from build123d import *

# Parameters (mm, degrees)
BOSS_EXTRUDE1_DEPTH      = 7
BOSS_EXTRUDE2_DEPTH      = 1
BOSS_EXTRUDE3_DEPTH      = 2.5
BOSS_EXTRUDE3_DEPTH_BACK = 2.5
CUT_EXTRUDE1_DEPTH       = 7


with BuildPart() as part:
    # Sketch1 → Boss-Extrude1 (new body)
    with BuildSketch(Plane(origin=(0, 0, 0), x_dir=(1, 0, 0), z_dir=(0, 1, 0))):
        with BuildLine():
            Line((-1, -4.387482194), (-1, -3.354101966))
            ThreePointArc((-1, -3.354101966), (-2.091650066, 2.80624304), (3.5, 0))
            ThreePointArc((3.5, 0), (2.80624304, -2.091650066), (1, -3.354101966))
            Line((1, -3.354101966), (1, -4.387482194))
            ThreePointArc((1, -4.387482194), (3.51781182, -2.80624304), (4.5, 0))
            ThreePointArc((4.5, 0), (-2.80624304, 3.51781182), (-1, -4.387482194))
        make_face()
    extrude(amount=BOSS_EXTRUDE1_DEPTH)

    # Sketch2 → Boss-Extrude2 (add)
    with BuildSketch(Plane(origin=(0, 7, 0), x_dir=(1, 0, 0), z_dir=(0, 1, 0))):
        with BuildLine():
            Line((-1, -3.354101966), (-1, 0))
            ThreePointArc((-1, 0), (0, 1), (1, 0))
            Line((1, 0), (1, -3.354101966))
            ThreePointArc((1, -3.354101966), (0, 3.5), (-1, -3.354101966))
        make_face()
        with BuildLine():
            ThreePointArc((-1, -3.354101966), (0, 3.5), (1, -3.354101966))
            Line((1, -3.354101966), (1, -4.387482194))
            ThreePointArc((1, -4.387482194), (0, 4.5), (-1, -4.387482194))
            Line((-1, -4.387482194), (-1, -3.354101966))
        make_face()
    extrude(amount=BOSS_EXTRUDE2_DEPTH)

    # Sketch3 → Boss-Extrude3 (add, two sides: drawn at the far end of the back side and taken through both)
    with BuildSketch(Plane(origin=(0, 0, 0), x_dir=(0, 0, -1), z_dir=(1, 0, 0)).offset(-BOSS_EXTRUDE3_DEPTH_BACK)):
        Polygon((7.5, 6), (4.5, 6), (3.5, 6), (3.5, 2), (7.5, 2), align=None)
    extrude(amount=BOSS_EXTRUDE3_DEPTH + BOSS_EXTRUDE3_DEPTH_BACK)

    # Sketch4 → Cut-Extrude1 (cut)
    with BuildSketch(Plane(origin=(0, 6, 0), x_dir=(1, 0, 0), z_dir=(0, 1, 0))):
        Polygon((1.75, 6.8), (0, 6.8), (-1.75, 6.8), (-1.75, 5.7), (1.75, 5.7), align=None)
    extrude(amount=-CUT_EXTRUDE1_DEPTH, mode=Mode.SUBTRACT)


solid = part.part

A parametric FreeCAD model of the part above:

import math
import FreeCAD as App
import Part
import Sketcher
from FreeCAD import Vector


def add_polygon(sketch, points):
    """Adds a closed chain of lines whose ends are joined by coincident constraints."""
    first, n = sketch.GeometryCount, len(points)
    for a, b in zip(points, points[1:] + points[:1]):
        sketch.addGeometry(Part.LineSegment(App.Vector(*a, 0), App.Vector(*b, 0)), False)
    for i in range(n):
        sketch.addConstraint(Sketcher.Constraint("Coincident", first + i, 2, first + (i + 1) % n, 1))

doc = App.newDocument("Part")
body = doc.addObject("PartDesign::Body", "Body")

# Sketch on XZ plane
sketch1 = body.newObject("Sketcher::SketchObject", "Sketch")
sketch1.AttachmentSupport = (doc.getObject("XZ_Plane"), [""])
sketch1.MapMode = "FlatFace"
sketch1.addGeometry(Part.LineSegment(Vector(-1, 4.4, 0), Vector(-1, 3.4, 0)), False)
sketch1.addGeometry(Part.ArcOfCircle(Part.Circle(Vector(0, 0, 0), Vector(0, 0, 1), 3.5), math.radians(107), math.radians(360)), False)
sketch1.addGeometry(Part.ArcOfCircle(Part.Circle(Vector(0, 0, 0), Vector(0, 0, 1), 3.5), math.radians(0), math.radians(73)), False)
sketch1.addGeometry(Part.LineSegment(Vector(1, 3.4, 0), Vector(1, 4.4, 0)), False)
sketch1.addGeometry(Part.ArcOfCircle(Part.Circle(Vector(0, 0, 0), Vector(0, 0, 1), 4.5), math.radians(0), math.radians(77)), False)
sketch1.addGeometry(Part.ArcOfCircle(Part.Circle(Vector(0, 0, 0), Vector(0, 0, 1), 4.5), math.radians(103), math.radians(360)), False)
sketch1.addConstraint(Sketcher.Constraint("Coincident", 0, 2, 1, 1))
sketch1.addConstraint(Sketcher.Constraint("Tangent", 1, 2, 2, 1))
sketch1.addConstraint(Sketcher.Constraint("Coincident", 2, 2, 3, 1))
sketch1.addConstraint(Sketcher.Constraint("Coincident", 3, 2, 4, 2))
sketch1.addConstraint(Sketcher.Constraint("Tangent", 4, 1, 5, 2))
sketch1.addConstraint(Sketcher.Constraint("Coincident", 5, 1, 0, 1))
sketch1.addConstraint(Sketcher.Constraint("Vertical", 0))
sketch1.addConstraint(Sketcher.Constraint("Vertical", 3))
sketch1.addConstraint(Sketcher.Constraint("Coincident", 1, 3, -1, 1))
sketch1.addConstraint(Sketcher.Constraint("Coincident", 4, 3, -1, 1))
sketch1.addConstraint(Sketcher.Constraint("Equal", 1, 2))
sketch1.addConstraint(Sketcher.Constraint("Equal", 4, 5))
sketch1.addConstraint(Sketcher.Constraint("PointOnObject", 1, 2, -1))
sketch1.addConstraint(Sketcher.Constraint("PointOnObject", 4, 1, -1))
sketch1.addConstraint(Sketcher.Constraint("Horizontal", 0, 2, 2, 2))
sketch1.addConstraint(Sketcher.Constraint("Radius", 1, 3.5))
sketch1.addConstraint(Sketcher.Constraint("Radius", 4, 4.5))
sketch1.addConstraint(Sketcher.Constraint("DistanceX", 0, 2, -1, 1, 1.0))
pad1 = body.newObject("PartDesign::Pad", "Pad")
pad1.Profile = sketch1
pad1.Length = 7
pad1.Reversed = True

# Sketch on XZ plane
sketch2 = body.newObject("Sketcher::SketchObject", "Sketch001")
sketch2.AttachmentSupport = (doc.getObject("XZ_Plane"), [""])
sketch2.MapMode = "FlatFace"
sketch2.AttachmentOffset = App.Placement(Vector(0, 0, -7), App.Rotation())
sketch2.addGeometry(Part.ArcOfCircle(Part.Circle(Vector(0, 0, 0), Vector(0, 0, 1), 1), math.radians(180), math.radians(360)), False)
sketch2.addGeometry(Part.LineSegment(Vector(1, 0, 0), Vector(1, 4.4, 0)), False)
sketch2.addGeometry(Part.ArcOfCircle(Part.Circle(Vector(0, 0, 0), Vector(0, 0, 1), 4.5), math.radians(103), math.radians(437)), False)
sketch2.addGeometry(Part.LineSegment(Vector(-1, 4.4, 0), Vector(-1, 0, 0)), False)
sketch2.addConstraint(Sketcher.Constraint("Tangent", 0, 2, 1, 1))
sketch2.addConstraint(Sketcher.Constraint("Coincident", 1, 2, 2, 2))
sketch2.addConstraint(Sketcher.Constraint("Coincident", 2, 1, 3, 1))
sketch2.addConstraint(Sketcher.Constraint("Tangent", 3, 2, 0, 1))
sketch2.addConstraint(Sketcher.Constraint("Vertical", 1))
sketch2.addConstraint(Sketcher.Constraint("Vertical", 3))
sketch2.addConstraint(Sketcher.Constraint("Coincident", 0, 3, -1, 1))
sketch2.addConstraint(Sketcher.Constraint("Coincident", 2, 3, -1, 1))
sketch2.addConstraint(Sketcher.Constraint("Radius", 0, 1.0))
sketch2.addConstraint(Sketcher.Constraint("Radius", 2, 4.5))
pad2 = body.newObject("PartDesign::Pad", "Pad001")
pad2.Profile = sketch2
pad2.Length = 1
pad2.Reversed = True

# Sketch on YZ plane
sketch3 = body.newObject("Sketcher::SketchObject", "Sketch002")
sketch3.AttachmentSupport = (doc.getObject("YZ_Plane"), [""])
sketch3.MapMode = "FlatFace"
add_polygon(sketch3, [(6, -7.5), (6, -3.5), (2, -3.5), (2, -7.5)])  # lines 0-3
sketch3.addConstraint(Sketcher.Constraint("Vertical", 0))
sketch3.addConstraint(Sketcher.Constraint("Horizontal", 1))
sketch3.addConstraint(Sketcher.Constraint("Vertical", 2))
sketch3.addConstraint(Sketcher.Constraint("Horizontal", 3))
sketch3.addConstraint(Sketcher.Constraint("Equal", 3, 0))
sketch3.addConstraint(Sketcher.Constraint("DistanceX", 1, 2, 1, 1, 4.0))
sketch3.addConstraint(Sketcher.Constraint("DistanceX", -1, 1, 0, 2, 6.0))
sketch3.addConstraint(Sketcher.Constraint("DistanceY", 0, 2, -1, 1, 3.5))
pad3 = body.newObject("PartDesign::Pad", "Pad002")
pad3.Profile = sketch3
pad3.Type = "TwoLengths"
pad3.Length = 2.5
pad3.Length2 = 2.5

# Sketch on XZ plane
sketch4 = body.newObject("Sketcher::SketchObject", "Sketch003")
sketch4.AttachmentSupport = (doc.getObject("XZ_Plane"), [""])
sketch4.MapMode = "FlatFace"
sketch4.AttachmentOffset = App.Placement(Vector(0, 0, -6), App.Rotation())
add_polygon(sketch4, [(1.8, -6.8), (-1.8, -6.8), (-1.8, -5.7), (1.8, -5.7)])  # lines 0-3
sketch4.addConstraint(Sketcher.Constraint("Horizontal", 0))
sketch4.addConstraint(Sketcher.Constraint("Vertical", 1))
sketch4.addConstraint(Sketcher.Constraint("Horizontal", 2))
sketch4.addConstraint(Sketcher.Constraint("Vertical", 3))
sketch4.addConstraint(Sketcher.Constraint("DistanceX", 0, 2, 0, 1, 3.5))
sketch4.addConstraint(Sketcher.Constraint("DistanceY", 1, 1, 1, 2, 1.1))
sketch4.addConstraint(Sketcher.Constraint("DistanceY", 0, 2, -1, 1, 6.8))
sketch4.addConstraint(Sketcher.Constraint("DistanceX", 0, 2, -1, 1, 1.75))
pocket1 = body.newObject("PartDesign::Pocket", "Pocket")
pocket1.Profile = sketch4
pocket1.Length = 7
pocket1.Reversed = True

doc.recompute()
